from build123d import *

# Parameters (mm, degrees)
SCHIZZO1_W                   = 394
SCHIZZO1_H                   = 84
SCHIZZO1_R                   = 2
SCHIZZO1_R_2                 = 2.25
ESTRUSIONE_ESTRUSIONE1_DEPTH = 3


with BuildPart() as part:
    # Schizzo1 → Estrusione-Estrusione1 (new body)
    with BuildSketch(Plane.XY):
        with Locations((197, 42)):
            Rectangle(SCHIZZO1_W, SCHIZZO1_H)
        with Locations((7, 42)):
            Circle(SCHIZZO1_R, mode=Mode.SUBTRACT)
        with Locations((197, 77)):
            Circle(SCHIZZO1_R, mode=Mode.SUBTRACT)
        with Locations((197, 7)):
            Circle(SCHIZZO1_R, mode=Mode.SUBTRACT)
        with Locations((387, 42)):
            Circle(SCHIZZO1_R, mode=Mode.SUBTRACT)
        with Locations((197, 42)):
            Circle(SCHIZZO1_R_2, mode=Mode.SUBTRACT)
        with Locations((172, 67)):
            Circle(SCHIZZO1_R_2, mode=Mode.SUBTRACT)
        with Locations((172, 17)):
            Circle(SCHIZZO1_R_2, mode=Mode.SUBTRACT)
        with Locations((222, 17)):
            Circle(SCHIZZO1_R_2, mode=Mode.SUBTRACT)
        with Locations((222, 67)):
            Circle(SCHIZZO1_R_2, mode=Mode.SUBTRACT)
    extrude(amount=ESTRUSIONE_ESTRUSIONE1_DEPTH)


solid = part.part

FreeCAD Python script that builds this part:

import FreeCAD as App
import Part
import Sketcher
Q = App.Units.Quantity


def add_polygon(sketch, points):
    """Adds a closed chain of lines whose ends are joined by coincident constraints."""
    first, n = sketch.GeometryCount, len(points)
    for a, b in zip(points, points[1:] + points[:1]):
        sketch.addGeometry(Part.LineSegment(App.Vector(*a, 0), App.Vector(*b, 0)), False)
    for i in range(n):
        sketch.addConstraint(Sketcher.Constraint("Coincident", first + i, 2, first + (i + 1) % n, 1))

doc = App.newDocument("Part")
body = doc.addObject("PartDesign::Body", "Body")

sketch1 = doc.addObject("Sketcher::SketchObject", "Sketch")
body.addObject(sketch1)
sketch1.AttachmentSupport = (doc.XY_Plane, [""])
sketch1.MapMode = "FlatFace"
add_polygon(sketch1, [(0, 84), (0, 0), (394, 0), (394, 84)])
sketch1.addGeometry(Part.Circle(App.Vector(172, 17, 0), App.Vector(0, 0, 1), 2.2), False)
sketch1.addGeometry(Part.Circle(App.Vector(197, 7, 0), App.Vector(0, 0, 1), 2), False)
sketch1.addGeometry(Part.Circle(App.Vector(222, 17, 0), App.Vector(0, 0, 1), 2.2), False)
sketch1.addGeometry(Part.Circle(App.Vector(7, 42, 0), App.Vector(0, 0, 1), 2), False)
sketch1.addGeometry(Part.Circle(App.Vector(172, 67, 0), App.Vector(0, 0, 1), 2.2), False)
sketch1.addGeometry(Part.Circle(App.Vector(197, 42, 0), App.Vector(0, 0, 1), 2.2), False)
sketch1.addGeometry(Part.Circle(App.Vector(387, 42, 0), App.Vector(0, 0, 1), 2), False)
sketch1.addGeometry(Part.Circle(App.Vector(222, 67, 0), App.Vector(0, 0, 1), 2.2), False)
sketch1.addGeometry(Part.Circle(App.Vector(197, 77, 0), App.Vector(0, 0, 1), 2), False)
sketch1.addConstraint([
    Sketcher.Constraint("Vertical", 0),
    Sketcher.Constraint("Horizontal", 1),
    Sketcher.Constraint("Vertical", 2),
    Sketcher.Constraint("Horizontal", 3),
    Sketcher.Constraint("Coincident", 0, 2, -1, 1),
    Sketcher.Constraint("Equal", 4, 6),
    Sketcher.Constraint("Equal", 5, 7),
    Sketcher.Constraint("Equal", 6, 8),
    Sketcher.Constraint("Equal", 8, 9),
    Sketcher.Constraint("Equal", 7, 10),
    Sketcher.Constraint("Equal", 9, 11),
    Sketcher.Constraint("Equal", 10, 12),
    Sketcher.Constraint("Horizontal", 4, 3, 6, 3),
    Sketcher.Constraint("Horizontal", 7, 3, 9, 3),
    Sketcher.Constraint("Horizontal", 9, 3, 10, 3),
    Sketcher.Constraint("Horizontal", 8, 3, 11, 3),
    Sketcher.Constraint("Vertical", 4, 3, 8, 3),
    Sketcher.Constraint("Vertical", 5, 3, 9, 3),
    Sketcher.Constraint("Vertical", 6, 3, 11, 3),
    Sketcher.Constraint("Vertical", 9, 3, 12, 3),
    Sketcher.Constraint("Diameter", 5, Q("4 mm")),
    Sketcher.Constraint("Diameter", 4, Q("4.5 mm")),
    Sketcher.Constraint("DistanceX", 1, 1, 1, 2, Q("394 mm")),
    Sketcher.Constraint("DistanceY", 0, 2, 0, 1, Q("84 mm")),
    Sketcher.Constraint("DistanceX", -1, 1, 4, 3, Q("172 mm")),
    Sketcher.Constraint("DistanceY", -1, 1, 4, 3, Q("17 mm")),
    Sketcher.Constraint("DistanceX", -1, 1, 5, 3, Q("197 mm")),
    Sketcher.Constraint("DistanceY", -1, 1, 5, 3, Q("7 mm")),
    Sketcher.Constraint("DistanceX", -1, 1, 6, 3, Q("222 mm")),
    Sketcher.Constraint("DistanceX", -1, 1, 7, 3, Q("7 mm")),
    Sketcher.Constraint("DistanceY", -1, 1, 7, 3, Q("42 mm")),
    Sketcher.Constraint("DistanceY", -1, 1, 8, 3, Q("67 mm")),
    Sketcher.Constraint("DistanceX", -1, 1, 10, 3, Q("387 mm")),
    Sketcher.Constraint("DistanceY", -1, 1, 12, 3, Q("77 mm")),
])
pad1 = doc.addObject("PartDesign::Pad", "Pad")
body.addObject(pad1)
pad1.Profile = sketch1
pad1.Length = 3

doc.recompute()
